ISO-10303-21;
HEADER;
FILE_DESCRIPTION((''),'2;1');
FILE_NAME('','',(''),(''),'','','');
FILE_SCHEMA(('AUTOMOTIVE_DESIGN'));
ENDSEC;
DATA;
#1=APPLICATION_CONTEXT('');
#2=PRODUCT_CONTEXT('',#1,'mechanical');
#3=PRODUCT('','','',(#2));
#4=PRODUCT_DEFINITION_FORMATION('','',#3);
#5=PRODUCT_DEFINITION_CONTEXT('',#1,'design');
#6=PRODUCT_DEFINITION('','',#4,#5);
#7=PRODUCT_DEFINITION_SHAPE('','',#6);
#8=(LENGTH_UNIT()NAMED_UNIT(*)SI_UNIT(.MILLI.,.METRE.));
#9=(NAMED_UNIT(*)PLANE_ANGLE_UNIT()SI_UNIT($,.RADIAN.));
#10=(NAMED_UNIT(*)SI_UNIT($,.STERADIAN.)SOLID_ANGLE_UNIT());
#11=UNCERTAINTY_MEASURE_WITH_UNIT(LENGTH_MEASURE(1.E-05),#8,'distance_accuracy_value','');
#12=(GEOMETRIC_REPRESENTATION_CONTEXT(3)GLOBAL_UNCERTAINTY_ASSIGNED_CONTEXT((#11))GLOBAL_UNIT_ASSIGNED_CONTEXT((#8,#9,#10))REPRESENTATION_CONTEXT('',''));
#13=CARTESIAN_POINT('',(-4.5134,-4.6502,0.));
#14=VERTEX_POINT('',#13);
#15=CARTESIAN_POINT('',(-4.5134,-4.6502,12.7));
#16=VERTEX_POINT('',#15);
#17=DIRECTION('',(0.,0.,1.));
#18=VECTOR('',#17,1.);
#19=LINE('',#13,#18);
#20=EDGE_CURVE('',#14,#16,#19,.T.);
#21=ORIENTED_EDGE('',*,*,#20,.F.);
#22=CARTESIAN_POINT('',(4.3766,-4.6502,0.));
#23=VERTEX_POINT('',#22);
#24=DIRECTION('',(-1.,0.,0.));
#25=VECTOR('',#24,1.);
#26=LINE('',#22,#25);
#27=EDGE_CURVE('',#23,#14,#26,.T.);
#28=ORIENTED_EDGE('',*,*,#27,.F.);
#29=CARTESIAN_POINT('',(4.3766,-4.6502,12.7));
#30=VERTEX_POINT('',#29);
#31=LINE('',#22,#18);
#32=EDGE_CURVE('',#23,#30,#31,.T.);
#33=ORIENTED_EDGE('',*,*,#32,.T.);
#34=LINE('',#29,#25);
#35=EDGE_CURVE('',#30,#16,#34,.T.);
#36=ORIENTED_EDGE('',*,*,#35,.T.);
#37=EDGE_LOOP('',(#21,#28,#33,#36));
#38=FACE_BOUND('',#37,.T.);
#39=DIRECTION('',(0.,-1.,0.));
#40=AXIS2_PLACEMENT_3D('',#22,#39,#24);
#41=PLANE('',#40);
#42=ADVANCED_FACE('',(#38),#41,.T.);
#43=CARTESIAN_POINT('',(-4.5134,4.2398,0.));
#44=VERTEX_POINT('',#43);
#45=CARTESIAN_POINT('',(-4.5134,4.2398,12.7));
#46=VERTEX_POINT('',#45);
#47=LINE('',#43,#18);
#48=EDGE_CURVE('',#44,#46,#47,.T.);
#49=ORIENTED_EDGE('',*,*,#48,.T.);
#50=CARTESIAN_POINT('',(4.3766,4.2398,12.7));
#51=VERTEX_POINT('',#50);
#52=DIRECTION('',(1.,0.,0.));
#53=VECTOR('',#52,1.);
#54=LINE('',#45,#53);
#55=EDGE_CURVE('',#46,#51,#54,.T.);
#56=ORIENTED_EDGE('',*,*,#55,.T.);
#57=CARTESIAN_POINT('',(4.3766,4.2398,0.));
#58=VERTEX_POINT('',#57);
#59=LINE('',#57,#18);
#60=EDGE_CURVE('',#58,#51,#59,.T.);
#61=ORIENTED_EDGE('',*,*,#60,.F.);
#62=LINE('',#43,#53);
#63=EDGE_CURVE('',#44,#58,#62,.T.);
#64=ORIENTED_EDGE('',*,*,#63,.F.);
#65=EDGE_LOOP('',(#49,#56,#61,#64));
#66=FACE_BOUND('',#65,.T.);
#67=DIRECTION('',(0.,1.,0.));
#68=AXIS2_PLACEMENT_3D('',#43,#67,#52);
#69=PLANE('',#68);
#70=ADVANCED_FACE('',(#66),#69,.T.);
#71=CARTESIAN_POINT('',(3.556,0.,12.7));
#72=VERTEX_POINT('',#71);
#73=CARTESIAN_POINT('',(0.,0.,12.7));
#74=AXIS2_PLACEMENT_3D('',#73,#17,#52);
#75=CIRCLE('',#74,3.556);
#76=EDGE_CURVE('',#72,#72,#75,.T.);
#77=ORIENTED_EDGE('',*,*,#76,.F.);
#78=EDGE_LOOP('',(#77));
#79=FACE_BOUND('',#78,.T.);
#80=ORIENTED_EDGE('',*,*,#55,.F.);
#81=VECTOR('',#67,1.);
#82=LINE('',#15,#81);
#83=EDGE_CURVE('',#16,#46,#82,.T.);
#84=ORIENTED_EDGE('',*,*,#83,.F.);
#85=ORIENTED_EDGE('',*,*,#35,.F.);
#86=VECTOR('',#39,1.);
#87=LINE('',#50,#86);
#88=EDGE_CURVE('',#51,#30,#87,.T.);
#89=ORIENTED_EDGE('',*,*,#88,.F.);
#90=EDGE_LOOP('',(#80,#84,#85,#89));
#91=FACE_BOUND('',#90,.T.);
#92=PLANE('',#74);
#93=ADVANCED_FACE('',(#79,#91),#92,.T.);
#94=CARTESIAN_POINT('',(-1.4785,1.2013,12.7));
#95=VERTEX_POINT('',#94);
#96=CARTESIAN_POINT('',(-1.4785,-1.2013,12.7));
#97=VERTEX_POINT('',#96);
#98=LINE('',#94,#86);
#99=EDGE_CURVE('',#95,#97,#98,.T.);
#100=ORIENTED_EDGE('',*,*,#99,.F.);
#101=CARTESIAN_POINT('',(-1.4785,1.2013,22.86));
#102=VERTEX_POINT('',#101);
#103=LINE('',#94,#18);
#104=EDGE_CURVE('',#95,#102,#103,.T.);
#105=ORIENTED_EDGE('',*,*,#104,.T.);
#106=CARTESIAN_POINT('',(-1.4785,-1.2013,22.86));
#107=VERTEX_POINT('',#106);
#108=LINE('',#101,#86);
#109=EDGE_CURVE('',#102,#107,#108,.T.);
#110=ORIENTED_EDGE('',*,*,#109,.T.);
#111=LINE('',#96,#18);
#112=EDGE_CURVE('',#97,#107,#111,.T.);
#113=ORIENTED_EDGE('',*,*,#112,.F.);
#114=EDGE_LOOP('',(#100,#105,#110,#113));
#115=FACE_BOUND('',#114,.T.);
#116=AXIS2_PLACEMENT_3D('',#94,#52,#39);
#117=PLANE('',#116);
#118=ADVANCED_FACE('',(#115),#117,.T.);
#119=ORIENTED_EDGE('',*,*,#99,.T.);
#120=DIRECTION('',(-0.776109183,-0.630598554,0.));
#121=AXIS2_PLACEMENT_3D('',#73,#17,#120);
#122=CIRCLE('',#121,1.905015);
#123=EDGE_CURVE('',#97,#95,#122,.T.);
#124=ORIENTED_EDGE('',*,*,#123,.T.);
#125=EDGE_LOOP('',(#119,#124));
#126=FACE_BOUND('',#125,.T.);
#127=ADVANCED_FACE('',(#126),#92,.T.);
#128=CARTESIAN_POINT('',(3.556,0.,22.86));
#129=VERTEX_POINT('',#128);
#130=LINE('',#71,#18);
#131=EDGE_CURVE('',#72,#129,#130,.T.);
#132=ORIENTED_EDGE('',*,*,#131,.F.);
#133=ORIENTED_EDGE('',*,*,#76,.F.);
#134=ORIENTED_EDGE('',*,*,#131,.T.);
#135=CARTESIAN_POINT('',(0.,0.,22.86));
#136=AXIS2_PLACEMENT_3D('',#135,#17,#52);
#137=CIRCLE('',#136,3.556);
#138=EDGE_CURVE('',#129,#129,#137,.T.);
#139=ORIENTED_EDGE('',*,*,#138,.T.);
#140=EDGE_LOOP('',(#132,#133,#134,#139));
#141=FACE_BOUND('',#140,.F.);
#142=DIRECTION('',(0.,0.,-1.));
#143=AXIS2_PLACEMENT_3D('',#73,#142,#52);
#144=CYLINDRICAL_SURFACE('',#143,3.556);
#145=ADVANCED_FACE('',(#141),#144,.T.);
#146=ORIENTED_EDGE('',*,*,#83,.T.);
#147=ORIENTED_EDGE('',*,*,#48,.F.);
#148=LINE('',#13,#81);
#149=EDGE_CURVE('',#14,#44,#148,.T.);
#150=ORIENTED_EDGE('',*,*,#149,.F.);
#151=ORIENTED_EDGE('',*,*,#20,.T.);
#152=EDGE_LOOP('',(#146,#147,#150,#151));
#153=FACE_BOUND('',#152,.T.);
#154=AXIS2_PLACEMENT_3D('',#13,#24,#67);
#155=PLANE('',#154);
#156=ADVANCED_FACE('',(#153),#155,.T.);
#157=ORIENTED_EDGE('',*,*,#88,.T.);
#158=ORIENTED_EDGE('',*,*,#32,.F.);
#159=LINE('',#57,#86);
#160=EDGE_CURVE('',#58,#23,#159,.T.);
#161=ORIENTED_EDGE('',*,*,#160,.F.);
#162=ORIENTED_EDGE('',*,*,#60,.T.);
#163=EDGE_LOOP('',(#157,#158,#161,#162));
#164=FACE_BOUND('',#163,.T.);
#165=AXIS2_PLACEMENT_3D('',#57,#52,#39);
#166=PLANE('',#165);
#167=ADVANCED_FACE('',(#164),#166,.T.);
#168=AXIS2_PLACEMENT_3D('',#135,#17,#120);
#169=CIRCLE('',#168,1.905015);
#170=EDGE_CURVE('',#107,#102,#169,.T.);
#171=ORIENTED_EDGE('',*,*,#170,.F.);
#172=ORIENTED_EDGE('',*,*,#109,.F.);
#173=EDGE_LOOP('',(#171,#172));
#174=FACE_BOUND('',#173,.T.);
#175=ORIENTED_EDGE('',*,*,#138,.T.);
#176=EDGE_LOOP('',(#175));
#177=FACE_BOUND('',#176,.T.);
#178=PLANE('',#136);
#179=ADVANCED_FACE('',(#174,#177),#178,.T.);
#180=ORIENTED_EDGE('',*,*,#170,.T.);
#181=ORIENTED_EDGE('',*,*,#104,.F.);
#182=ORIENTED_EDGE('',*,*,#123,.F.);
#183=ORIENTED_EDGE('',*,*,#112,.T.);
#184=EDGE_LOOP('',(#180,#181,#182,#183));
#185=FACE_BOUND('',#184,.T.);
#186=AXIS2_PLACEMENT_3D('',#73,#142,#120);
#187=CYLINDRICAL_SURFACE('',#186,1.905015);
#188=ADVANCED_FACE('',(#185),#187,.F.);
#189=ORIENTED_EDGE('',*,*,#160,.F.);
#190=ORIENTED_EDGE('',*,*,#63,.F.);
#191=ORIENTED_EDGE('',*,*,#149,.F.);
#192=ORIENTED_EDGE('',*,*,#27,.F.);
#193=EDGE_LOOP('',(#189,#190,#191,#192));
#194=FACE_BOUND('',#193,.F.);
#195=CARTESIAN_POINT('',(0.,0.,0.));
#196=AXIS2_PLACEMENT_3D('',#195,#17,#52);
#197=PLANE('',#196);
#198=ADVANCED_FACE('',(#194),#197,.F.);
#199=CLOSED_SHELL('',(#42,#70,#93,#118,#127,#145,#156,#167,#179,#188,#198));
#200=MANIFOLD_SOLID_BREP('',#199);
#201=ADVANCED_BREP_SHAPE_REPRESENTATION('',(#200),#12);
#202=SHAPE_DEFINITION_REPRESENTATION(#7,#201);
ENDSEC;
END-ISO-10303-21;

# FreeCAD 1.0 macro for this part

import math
import FreeCAD as App
import Part
import Sketcher
Q = App.Units.Quantity

doc = App.newDocument("Part")
body = doc.addObject("PartDesign::Body", "Body")

# Sketch on XY plane
sketch1 = doc.addObject("Sketcher::SketchObject", "Sketch")
body.addObject(sketch1)
sketch1.AttachmentSupport = (doc.XY_Plane, [""])
sketch1.MapMode = "FlatFace"
sketch1.addGeometry([
    Part.LineSegment(App.Vector(4.3766, 4.2398, 0), App.Vector(-4.5134, 4.2398, 0)),
    Part.LineSegment(App.Vector(-4.5134, 4.2398, 0), App.Vector(-4.5134, -4.6502, 0)),
    Part.LineSegment(App.Vector(-4.5134, -4.6502, 0), App.Vector(4.3766, -4.6502, 0)),
    Part.LineSegment(App.Vector(4.3766, -4.6502, 0), App.Vector(4.3766, 4.2398, 0)),
], False)
sketch1.addConstraint([
    Sketcher.Constraint("Coincident", 0, 2, 1, 1),
    Sketcher.Constraint("Coincident", 1, 2, 2, 1),
    Sketcher.Constraint("Coincident", 2, 2, 3, 1),
    Sketcher.Constraint("Coincident", 3, 2, 0, 1),
    Sketcher.Constraint("Horizontal", 0),
    Sketcher.Constraint("Vertical", 1),
    Sketcher.Constraint("Horizontal", 2),
    Sketcher.Constraint("Vertical", 3),
    Sketcher.Constraint("Equal", 2, 1),
    Sketcher.Constraint("DistanceX", 0, 2, 0, 1, Q("0.35 in")),
    Sketcher.Constraint("DistanceX", 0, 2, -1, 1, Q("0.1777 in")),
    Sketcher.Constraint("DistanceY", -1, 1, 0, 2, Q("4.2398 mm")),
])
pad1 = doc.addObject("PartDesign::Pad", "Pad")
body.addObject(pad1)
pad1.Profile = sketch1
pad1.Length = Q("0.5 in")

# Sketch on XY plane
sketch2 = doc.addObject("Sketcher::SketchObject", "Sketch001")
body.addObject(sketch2)
sketch2.AttachmentSupport = (doc.XY_Plane, [""])
sketch2.MapMode = "FlatFace"
sketch2.AttachmentOffset = App.Placement(App.Vector(0, 0, 0.5 * 25.4), App.Rotation())
sketch2.addGeometry([
    Part.Circle(App.Vector(0, 0, 0), App.Vector(0, 0, 1), 3.556),
    Part.ArcOfCircle(Part.Circle(App.Vector(0, 0, 0), App.Vector(0, 0, 1), 1.905015), math.radians(-140.905703), math.radians(140.905703)),
    Part.LineSegment(App.Vector(-1.4785, -1.2013, 0), App.Vector(-1.4785, 1.2013, 0)),
], False)
sketch2.addConstraint([
    Sketcher.Constraint("Coincident", 1, 1, 2, 1),
    Sketcher.Constraint("Coincident", 2, 2, 1, 2),
    Sketcher.Constraint("Vertical", 2),
    Sketcher.Constraint("Coincident", 0, 3, -1, 1),
    Sketcher.Constraint("Coincident", 1, 3, -1, 1),
    Sketcher.Constraint("Diameter", 0, Q("0.28 in")),
    Sketcher.Constraint("Radius", 1, Q("0.075 in")),
    Sketcher.Constraint("DistanceY", 2, 1, 2, 2, Q("0.0946 in")),
])
pad2 = doc.addObject("PartDesign::Pad", "Pad001")
body.addObject(pad2)
pad2.Profile = sketch2
pad2.Length = Q("0.4 in")

doc.recompute()
